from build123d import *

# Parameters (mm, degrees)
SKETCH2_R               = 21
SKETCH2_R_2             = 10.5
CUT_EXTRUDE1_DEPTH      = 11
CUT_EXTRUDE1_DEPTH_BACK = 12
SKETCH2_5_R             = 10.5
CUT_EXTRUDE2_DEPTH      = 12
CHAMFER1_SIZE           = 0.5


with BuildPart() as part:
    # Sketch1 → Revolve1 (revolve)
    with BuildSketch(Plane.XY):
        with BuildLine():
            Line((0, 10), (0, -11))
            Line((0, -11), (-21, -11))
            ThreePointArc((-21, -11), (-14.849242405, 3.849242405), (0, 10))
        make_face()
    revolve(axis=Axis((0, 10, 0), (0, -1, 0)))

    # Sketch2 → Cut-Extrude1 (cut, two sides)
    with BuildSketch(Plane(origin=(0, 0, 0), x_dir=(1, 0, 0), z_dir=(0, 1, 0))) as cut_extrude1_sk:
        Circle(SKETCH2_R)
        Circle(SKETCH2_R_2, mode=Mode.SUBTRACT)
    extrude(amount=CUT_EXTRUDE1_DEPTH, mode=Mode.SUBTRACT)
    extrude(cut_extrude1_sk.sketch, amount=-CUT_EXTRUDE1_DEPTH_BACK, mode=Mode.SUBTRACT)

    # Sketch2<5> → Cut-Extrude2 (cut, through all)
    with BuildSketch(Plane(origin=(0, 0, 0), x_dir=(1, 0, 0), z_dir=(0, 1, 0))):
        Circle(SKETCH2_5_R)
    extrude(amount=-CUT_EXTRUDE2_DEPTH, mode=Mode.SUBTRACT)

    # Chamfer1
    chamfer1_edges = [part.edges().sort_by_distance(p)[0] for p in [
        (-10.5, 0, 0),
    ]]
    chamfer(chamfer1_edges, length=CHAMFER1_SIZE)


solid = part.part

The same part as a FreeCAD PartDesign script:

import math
import FreeCAD as App
import Part
import Sketcher
from FreeCAD import Vector
Q = App.Units.Quantity


def edges_at(feature, points):
    """Names of the edges that pass closest to the given points."""
    edges = feature.Shape.Edges
    near = lambda p: min(range(len(edges)), key=lambda i: edges[i].distToShape(Part.Vertex(*p))[0])
    return sorted({f"Edge{near(p) + 1}" for p in points})

doc = App.newDocument("Part")
body = doc.addObject("PartDesign::Body", "Body")

sketch1 = body.newObject("Sketcher::SketchObject", "Sketch")
sketch1.AttachmentSupport = (doc.getObject("XY_Plane"), [""])
sketch1.MapMode = "FlatFace"
sketch1.addGeometry(Part.LineSegment(Vector(0, -11, 0), Vector(0, 10, 0)), False)
sketch1.addGeometry(Part.ArcOfCircle(Part.Circle(Vector(0, -11, 0), Vector(0, 0, 1), 21), math.radians(90), math.radians(180)), False)
sketch1.addGeometry(Part.LineSegment(Vector(-21, -11, 0), Vector(0, -11, 0)), False)
sketch1.addConstraint(Sketcher.Constraint("Coincident", 0, 2, 1, 1))
sketch1.addConstraint(Sketcher.Constraint("Coincident", 1, 2, 2, 1))
sketch1.addConstraint(Sketcher.Constraint("Coincident", 2, 2, 0, 1))
sketch1.addConstraint(Sketcher.Constraint("Vertical", 0))
sketch1.addConstraint(Sketcher.Constraint("Horizontal", 2))
sketch1.addConstraint(Sketcher.Constraint("Coincident", 2, 2, 1, 3))
sketch1.addConstraint(Sketcher.Constraint("PointOnObject", 1, 3, -2))
sketch1.addConstraint(Sketcher.Constraint("Radius", 1, Q("21 mm")))
sketch1.addConstraint(Sketcher.Constraint("DistanceY", 1, 3, -1, 1, Q("11 mm")))
revolution = body.newObject("PartDesign::Revolution", "Revolution")
revolution.Profile = sketch1
revolution.ReferenceAxis = (sketch1, ["V_Axis"])
revolution.Angle = 360

sketch2 = body.newObject("Sketcher::SketchObject", "Sketch001")
sketch2.AttachmentSupport = (doc.getObject("XZ_Plane"), [""])
sketch2.MapMode = "FlatFace"
sketch2.addGeometry(Part.Circle(Vector(0, 0, 0), Vector(0, 0, 1), 21), False)
sketch2.addGeometry(Part.Circle(Vector(0, 0, 0), Vector(0, 0, 1), 10), False)
sketch2.addConstraint(Sketcher.Constraint("Coincident", 0, 3, -1, 1))
sketch2.addConstraint(Sketcher.Constraint("Coincident", 1, 3, -1, 1))
sketch2.addConstraint(Sketcher.Constraint("Diameter", 0, Q("42 mm")))
sketch2.addConstraint(Sketcher.Constraint("Diameter", 1, Q("21 mm")))
pocket1 = body.newObject("PartDesign::Pocket", "Pocket")
pocket1.Profile = sketch2
pocket1.Type = "ThroughAll"
pocket1.Midplane = True

sketch3 = body.newObject("Sketcher::SketchObject", "Sketch002")
sketch3.AttachmentSupport = (doc.getObject("XZ_Plane"), [""])
sketch3.MapMode = "FlatFace"
sketch3.addGeometry(Part.Circle(Vector(0, 0, 0), Vector(0, 0, 1), 10), False)
sketch3.addConstraint(Sketcher.Constraint("Coincident", 0, 3, -1, 1))
sketch3.addConstraint(Sketcher.Constraint("Diameter", 0, Q("21 mm")))
pocket2 = body.newObject("PartDesign::Pocket", "Pocket001")
pocket2.Profile = sketch3
pocket2.Type = "ThroughAll"
pocket2.Reversed = True
doc.recompute()

chamfer = body.newObject("PartDesign::Chamfer", "Chamfer")
chamfer.Base = (pocket2, edges_at(pocket2, [(-10.5, 0, 0)]))
chamfer.Size = 0.5

doc.recompute()
